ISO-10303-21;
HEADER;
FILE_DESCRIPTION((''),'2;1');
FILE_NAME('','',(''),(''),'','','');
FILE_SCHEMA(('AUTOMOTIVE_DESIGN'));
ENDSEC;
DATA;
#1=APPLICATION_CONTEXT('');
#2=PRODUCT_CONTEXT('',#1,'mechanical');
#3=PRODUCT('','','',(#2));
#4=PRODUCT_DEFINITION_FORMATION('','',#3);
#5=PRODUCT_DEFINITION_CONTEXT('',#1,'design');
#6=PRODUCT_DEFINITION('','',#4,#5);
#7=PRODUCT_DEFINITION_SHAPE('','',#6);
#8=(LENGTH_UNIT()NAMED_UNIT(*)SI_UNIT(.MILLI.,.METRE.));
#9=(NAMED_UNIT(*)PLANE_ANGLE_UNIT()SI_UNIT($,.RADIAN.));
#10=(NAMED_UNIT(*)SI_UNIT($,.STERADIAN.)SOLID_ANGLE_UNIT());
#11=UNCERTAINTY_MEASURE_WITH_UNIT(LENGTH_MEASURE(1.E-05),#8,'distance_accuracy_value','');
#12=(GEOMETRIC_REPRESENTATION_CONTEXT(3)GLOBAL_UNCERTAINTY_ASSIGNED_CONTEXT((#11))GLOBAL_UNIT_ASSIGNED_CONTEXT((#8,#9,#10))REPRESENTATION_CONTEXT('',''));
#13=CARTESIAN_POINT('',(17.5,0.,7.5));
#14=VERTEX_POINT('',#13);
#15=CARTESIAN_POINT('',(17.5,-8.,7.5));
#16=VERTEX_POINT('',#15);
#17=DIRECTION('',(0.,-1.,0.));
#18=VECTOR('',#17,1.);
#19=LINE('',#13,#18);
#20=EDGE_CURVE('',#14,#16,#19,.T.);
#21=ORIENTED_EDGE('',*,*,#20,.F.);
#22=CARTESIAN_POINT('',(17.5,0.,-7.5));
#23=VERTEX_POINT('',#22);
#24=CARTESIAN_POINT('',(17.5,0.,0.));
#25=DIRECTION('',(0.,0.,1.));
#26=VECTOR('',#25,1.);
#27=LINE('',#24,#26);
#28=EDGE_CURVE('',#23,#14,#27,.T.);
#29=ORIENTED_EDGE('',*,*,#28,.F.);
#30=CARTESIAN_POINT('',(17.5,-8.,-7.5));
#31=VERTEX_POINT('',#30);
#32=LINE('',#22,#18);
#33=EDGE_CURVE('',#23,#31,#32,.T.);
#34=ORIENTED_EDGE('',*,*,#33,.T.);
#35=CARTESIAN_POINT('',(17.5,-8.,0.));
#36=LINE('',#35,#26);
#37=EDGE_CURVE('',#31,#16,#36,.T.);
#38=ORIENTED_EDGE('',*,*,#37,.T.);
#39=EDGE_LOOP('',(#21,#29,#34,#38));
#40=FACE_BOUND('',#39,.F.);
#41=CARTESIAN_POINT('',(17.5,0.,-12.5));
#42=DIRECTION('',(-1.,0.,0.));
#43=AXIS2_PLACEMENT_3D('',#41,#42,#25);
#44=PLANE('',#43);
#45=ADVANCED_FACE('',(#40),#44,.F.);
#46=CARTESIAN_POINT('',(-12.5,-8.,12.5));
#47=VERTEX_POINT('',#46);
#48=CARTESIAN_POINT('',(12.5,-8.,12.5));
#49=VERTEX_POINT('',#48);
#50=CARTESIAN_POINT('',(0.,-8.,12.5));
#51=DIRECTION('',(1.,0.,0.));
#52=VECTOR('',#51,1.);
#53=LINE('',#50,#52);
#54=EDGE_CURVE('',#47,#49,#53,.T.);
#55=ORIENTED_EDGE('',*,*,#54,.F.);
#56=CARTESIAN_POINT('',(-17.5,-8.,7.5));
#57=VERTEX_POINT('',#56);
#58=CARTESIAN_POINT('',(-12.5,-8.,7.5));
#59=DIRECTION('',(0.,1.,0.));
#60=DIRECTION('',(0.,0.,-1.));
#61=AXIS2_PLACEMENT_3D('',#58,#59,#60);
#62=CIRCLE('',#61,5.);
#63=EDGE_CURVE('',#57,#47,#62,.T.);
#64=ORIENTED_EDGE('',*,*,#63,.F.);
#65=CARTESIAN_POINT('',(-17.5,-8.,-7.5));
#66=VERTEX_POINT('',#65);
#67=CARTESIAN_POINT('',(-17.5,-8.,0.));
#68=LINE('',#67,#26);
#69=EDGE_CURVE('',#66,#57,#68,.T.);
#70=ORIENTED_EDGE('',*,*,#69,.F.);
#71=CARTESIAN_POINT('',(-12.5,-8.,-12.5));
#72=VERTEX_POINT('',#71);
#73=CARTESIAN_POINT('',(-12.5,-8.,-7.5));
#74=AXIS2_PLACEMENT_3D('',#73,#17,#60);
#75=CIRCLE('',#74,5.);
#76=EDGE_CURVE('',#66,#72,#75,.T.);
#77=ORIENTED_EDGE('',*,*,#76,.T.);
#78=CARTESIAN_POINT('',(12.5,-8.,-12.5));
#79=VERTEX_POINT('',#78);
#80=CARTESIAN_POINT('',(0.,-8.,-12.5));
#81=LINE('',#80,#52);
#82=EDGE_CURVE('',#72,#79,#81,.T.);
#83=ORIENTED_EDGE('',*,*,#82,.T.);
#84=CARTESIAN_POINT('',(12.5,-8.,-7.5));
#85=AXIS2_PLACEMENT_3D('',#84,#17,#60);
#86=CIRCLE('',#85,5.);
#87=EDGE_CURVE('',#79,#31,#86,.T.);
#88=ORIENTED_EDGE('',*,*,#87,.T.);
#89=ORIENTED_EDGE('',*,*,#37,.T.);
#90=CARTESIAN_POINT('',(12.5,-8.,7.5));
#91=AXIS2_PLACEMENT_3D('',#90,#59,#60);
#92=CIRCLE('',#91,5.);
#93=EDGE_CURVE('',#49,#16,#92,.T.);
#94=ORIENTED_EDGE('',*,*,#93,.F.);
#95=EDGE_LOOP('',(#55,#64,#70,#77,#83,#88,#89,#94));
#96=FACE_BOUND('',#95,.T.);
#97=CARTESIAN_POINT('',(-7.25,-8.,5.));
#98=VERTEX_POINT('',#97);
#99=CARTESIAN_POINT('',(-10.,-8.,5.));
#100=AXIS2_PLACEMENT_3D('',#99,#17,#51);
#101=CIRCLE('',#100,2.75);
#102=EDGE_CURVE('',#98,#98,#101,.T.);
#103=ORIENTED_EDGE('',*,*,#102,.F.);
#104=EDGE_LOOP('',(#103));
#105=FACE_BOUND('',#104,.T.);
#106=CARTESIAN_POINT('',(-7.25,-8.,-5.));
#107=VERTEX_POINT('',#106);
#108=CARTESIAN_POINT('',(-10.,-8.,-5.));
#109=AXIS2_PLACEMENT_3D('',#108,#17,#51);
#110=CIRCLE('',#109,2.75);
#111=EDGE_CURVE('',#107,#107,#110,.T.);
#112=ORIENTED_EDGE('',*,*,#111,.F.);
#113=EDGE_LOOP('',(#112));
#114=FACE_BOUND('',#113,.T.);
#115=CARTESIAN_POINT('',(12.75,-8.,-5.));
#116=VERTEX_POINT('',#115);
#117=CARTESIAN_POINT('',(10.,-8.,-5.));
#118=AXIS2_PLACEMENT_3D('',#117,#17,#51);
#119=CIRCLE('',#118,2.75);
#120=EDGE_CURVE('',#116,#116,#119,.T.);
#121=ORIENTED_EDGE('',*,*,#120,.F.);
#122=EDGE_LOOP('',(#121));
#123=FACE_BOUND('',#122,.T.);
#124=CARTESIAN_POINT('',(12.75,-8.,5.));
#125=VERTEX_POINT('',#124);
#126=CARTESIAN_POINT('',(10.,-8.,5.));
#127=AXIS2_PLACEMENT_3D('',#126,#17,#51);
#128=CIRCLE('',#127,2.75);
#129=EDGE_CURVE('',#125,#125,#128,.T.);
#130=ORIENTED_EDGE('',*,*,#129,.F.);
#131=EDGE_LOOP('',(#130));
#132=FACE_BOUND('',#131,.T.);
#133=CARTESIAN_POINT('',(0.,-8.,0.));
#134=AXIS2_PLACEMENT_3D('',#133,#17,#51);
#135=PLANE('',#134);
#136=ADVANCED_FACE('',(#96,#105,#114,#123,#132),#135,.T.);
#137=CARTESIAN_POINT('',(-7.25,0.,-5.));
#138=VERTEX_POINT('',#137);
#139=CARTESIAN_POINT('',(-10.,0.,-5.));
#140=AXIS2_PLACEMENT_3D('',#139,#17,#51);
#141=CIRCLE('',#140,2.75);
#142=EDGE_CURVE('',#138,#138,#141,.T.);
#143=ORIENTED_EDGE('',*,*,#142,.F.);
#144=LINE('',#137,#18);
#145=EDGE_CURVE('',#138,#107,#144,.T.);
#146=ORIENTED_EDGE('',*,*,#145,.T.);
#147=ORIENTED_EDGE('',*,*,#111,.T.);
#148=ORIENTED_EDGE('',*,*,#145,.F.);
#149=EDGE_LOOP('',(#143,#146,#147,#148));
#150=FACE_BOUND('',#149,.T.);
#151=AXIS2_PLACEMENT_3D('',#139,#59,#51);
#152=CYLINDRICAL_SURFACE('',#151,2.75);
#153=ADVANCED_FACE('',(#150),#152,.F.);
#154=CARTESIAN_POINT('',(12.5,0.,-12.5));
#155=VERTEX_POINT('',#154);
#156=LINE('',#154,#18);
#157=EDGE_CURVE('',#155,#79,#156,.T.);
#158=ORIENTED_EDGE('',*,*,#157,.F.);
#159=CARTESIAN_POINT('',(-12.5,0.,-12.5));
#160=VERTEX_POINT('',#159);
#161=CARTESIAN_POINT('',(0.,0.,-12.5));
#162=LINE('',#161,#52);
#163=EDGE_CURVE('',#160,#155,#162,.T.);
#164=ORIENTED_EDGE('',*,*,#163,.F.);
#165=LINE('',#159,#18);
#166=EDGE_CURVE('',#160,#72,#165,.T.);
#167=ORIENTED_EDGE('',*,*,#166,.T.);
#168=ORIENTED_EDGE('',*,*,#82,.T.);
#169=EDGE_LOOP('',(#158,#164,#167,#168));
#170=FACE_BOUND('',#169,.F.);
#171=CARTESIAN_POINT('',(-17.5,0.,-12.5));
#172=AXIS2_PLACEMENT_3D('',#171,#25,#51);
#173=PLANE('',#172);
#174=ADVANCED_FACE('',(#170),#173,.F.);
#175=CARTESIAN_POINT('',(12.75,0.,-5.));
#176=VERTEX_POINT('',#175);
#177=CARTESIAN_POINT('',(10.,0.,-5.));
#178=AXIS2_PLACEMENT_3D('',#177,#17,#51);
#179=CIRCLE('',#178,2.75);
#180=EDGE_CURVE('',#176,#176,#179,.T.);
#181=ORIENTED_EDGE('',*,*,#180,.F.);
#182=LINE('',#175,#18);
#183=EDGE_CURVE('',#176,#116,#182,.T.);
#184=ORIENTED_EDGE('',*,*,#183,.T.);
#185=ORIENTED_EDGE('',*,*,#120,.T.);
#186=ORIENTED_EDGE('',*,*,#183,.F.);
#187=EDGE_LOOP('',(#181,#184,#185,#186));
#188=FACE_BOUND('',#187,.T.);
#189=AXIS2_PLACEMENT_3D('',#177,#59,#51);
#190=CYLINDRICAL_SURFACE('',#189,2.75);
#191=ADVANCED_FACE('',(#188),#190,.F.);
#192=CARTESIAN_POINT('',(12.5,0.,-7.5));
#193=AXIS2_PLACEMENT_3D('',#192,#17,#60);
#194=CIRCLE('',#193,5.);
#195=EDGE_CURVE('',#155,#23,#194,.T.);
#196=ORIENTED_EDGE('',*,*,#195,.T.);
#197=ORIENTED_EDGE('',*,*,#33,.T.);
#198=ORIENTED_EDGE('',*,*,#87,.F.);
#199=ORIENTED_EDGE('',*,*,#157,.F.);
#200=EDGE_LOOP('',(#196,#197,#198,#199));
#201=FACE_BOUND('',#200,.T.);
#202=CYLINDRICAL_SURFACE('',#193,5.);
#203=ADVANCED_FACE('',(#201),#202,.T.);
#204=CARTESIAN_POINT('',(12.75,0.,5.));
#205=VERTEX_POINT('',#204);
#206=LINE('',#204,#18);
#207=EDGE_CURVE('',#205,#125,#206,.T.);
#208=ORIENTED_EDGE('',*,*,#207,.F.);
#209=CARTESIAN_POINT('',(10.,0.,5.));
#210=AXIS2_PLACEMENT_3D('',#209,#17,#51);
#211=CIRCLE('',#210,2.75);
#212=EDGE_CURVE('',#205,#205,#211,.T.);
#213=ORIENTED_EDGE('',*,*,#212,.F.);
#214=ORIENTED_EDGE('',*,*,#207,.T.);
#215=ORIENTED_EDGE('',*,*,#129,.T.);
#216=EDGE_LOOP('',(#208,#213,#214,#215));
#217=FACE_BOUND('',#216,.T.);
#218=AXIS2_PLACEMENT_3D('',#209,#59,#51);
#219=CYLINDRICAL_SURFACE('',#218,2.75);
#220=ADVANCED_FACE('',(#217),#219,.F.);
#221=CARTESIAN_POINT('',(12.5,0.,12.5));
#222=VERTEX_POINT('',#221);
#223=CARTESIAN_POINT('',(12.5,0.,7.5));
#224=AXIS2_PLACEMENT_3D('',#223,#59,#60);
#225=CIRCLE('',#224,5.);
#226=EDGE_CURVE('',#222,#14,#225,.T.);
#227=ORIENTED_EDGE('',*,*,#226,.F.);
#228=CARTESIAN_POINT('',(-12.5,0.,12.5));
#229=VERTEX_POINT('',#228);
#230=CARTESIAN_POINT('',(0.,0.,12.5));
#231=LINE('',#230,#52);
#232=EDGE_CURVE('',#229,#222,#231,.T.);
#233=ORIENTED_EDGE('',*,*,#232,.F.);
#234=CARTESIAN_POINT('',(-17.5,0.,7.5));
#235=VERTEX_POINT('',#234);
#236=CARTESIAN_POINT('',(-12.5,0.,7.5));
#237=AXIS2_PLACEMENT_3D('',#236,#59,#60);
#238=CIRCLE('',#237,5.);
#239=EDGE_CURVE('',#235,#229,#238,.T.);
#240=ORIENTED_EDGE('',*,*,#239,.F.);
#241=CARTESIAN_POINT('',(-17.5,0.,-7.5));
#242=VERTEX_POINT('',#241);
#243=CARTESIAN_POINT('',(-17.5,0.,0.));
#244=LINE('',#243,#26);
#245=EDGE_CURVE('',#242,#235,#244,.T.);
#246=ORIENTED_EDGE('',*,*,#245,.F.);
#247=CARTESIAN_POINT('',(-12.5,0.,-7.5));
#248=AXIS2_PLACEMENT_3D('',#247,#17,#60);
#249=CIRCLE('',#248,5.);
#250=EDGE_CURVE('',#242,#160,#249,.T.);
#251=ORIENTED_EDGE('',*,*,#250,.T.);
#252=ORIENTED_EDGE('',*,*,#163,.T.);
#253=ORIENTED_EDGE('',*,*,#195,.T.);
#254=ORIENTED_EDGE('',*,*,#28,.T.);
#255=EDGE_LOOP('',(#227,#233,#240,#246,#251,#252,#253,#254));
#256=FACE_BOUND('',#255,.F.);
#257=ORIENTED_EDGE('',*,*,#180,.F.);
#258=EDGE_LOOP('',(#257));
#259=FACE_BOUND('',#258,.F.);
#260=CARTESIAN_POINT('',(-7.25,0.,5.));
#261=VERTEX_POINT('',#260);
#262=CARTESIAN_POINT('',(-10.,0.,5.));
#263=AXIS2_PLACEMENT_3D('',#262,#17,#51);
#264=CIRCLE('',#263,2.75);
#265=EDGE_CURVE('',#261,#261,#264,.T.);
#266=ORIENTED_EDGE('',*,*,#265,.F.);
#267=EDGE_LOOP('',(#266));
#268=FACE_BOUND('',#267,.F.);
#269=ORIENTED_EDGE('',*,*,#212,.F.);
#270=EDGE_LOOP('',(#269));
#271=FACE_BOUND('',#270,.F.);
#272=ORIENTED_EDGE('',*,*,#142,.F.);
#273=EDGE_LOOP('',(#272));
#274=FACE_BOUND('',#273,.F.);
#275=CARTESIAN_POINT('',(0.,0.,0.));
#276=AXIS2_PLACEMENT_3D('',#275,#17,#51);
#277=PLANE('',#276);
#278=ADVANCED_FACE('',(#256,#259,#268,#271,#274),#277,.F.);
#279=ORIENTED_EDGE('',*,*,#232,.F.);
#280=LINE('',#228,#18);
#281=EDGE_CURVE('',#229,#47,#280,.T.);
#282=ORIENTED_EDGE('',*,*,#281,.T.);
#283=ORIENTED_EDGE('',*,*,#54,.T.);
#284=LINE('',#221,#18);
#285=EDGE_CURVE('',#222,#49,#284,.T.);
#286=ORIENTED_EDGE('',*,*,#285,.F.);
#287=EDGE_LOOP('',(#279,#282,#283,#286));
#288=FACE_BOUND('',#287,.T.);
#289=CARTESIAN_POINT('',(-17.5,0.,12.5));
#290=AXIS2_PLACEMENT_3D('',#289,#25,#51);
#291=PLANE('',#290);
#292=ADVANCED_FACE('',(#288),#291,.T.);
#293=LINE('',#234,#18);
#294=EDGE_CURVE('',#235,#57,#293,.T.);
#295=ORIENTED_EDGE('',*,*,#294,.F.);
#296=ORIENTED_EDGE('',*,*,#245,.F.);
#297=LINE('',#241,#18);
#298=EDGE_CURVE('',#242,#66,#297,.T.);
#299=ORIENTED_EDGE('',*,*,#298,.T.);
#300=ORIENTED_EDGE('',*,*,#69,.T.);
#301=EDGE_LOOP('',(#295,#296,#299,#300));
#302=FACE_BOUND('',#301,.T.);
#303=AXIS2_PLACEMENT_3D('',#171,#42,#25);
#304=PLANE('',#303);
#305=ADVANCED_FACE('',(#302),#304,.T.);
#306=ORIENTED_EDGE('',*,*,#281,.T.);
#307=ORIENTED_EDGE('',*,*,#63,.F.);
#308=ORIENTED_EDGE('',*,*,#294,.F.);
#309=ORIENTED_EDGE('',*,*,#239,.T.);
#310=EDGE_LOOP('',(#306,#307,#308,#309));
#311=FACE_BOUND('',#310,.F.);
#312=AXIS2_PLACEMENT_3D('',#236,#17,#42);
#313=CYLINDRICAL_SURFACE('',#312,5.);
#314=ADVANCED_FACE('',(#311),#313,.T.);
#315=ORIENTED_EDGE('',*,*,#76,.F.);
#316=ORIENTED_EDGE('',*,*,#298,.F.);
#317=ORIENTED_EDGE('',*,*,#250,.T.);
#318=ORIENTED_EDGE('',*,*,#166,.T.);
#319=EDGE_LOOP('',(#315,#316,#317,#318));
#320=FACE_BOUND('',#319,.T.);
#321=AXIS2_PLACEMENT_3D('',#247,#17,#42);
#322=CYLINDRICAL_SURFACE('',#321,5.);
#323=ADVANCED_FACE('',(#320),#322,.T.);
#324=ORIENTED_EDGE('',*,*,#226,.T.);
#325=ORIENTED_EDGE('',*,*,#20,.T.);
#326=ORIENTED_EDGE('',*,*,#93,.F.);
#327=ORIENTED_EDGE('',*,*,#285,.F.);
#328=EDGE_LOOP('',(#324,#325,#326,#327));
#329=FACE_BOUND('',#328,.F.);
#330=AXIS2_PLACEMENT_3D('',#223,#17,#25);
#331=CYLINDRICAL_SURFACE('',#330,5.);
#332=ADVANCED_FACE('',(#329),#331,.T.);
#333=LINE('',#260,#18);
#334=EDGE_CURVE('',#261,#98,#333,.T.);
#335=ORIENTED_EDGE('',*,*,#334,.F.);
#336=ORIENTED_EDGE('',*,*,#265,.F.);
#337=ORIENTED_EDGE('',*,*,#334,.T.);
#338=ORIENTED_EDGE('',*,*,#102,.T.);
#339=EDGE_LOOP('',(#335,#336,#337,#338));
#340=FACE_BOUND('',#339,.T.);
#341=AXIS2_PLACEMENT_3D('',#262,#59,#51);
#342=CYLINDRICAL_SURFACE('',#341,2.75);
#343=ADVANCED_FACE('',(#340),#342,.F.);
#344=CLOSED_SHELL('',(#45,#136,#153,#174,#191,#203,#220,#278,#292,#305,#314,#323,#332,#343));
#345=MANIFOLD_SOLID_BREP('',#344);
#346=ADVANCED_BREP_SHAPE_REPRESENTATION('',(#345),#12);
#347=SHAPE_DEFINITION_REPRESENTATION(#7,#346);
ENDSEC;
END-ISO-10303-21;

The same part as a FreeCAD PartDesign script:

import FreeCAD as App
import Part
import Sketcher

V = App.Vector
Q = App.Units.Quantity


def edges_at(feature, points):
    """Names of the edges that pass closest to the given points."""
    edges = feature.Shape.Edges
    near = lambda p: min(range(len(edges)), key=lambda i: edges[i].distToShape(Part.Vertex(*p))[0])
    return sorted({f"Edge{near(p) + 1}" for p in points})

doc = App.newDocument("Part")
body = doc.addObject("PartDesign::Body", "Body")

sketch1 = doc.addObject("Sketcher::SketchObject", "Sketch")
body.addObject(sketch1)
sketch1.AttachmentSupport = (doc.XZ_Plane, [""])
sketch1.MapMode = "FlatFace"
sketch1.addGeometry([
    Part.LineSegment(V(-17.5, 12.5, 0), V(-17.5, -12.5, 0)),
    Part.LineSegment(V(-17.5, -12.5, 0), V(17.5, -12.5, 0)),
    Part.LineSegment(V(17.5, -12.5, 0), V(17.5, 12.5, 0)),
    Part.LineSegment(V(17.5, 12.5, 0), V(-17.5, 12.5, 0)),
    Part.Circle(V(-10, -5, 0), V(0, 0, 1), 2.8),
    Part.Circle(V(10, -5, 0), V(0, 0, 1), 2.8),
    Part.Circle(V(-10, 5, 0), V(0, 0, 1), 2.8),
    Part.Circle(V(10, 5, 0), V(0, 0, 1), 2.8),
], False)
sketch1.addConstraint([
    Sketcher.Constraint("Coincident", 0, 2, 1, 1),
    Sketcher.Constraint("Coincident", 1, 2, 2, 1),
    Sketcher.Constraint("Coincident", 2, 2, 3, 1),
    Sketcher.Constraint("Coincident", 3, 2, 0, 1),
    Sketcher.Constraint("Vertical", 0),
    Sketcher.Constraint("Horizontal", 1),
    Sketcher.Constraint("Vertical", 2),
    Sketcher.Constraint("Horizontal", 3),
    Sketcher.Constraint("Equal", 4, 5),
    Sketcher.Constraint("Equal", 5, 6),
    Sketcher.Constraint("Equal", 6, 7),
    Sketcher.Constraint("Symmetric", 5, 3, 6, 3, -1, 1),
    Sketcher.Constraint("Symmetric", 4, 3, 7, 3, -1, 1),
    Sketcher.Constraint("Symmetric", 0, 2, 2, 2, -1, 1),
    Sketcher.Constraint("Symmetric", 4, 3, 5, 3, -2),
    Sketcher.Constraint("Diameter", 4, Q("5.5 mm")),
    Sketcher.Constraint("DistanceX", 1, 1, 1, 2, Q("35 mm")),
    Sketcher.Constraint("DistanceY", 0, 2, 0, 1, Q("25 mm")),
    Sketcher.Constraint("DistanceX", 4, 3, -1, 1, Q("10 mm")),
    Sketcher.Constraint("DistanceY", 4, 3, -1, 1, Q("5 mm")),
])
pad1 = doc.addObject("PartDesign::Pad", "Pad")
body.addObject(pad1)
pad1.Profile = sketch1
pad1.Length = 8
doc.recompute()

fillet = doc.addObject("PartDesign::Fillet", "Fillet")
body.addObject(fillet)
fillet.Base = (pad1, edges_at(pad1, [
    (17.5, -4, -12.5),
    (17.5, -4, 12.5),
    (-17.5, -4, -12.5),
    (-17.5, -4, 12.5),
]))
fillet.Radius = 5

doc.recompute()
